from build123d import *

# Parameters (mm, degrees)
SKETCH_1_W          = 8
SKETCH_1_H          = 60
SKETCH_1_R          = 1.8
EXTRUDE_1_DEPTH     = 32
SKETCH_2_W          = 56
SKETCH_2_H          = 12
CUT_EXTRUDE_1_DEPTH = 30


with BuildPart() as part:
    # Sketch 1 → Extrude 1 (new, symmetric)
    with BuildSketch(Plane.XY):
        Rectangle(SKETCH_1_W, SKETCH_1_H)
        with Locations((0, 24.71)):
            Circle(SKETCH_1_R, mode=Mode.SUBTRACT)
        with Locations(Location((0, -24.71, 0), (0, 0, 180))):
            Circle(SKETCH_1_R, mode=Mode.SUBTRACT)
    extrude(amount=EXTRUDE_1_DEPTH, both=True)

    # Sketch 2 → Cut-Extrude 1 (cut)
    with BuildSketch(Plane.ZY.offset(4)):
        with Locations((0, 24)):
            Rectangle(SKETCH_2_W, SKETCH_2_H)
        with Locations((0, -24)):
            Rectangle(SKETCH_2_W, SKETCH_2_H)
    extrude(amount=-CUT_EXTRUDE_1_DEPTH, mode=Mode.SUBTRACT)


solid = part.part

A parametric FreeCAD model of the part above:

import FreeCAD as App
import Part
import Sketcher

V = App.Vector
Q = App.Units.Quantity

doc = App.newDocument("Part")
body = doc.addObject("PartDesign::Body", "Body")

# Sketch on XY plane
sketch1 = body.newObject("Sketcher::SketchObject", "Sketch")
sketch1.AttachmentSupport = (doc.getObject("XY_Plane"), [""])
sketch1.MapMode = "FlatFace"
sketch1.addGeometry([
    Part.LineSegment(V(-4, 30, 0), V(-4, -30, 0)),  # 0
    Part.LineSegment(V(-4, -30, 0), V(4, -30, 0)),  # 1
    Part.LineSegment(V(4, -30, 0), V(4, 30, 0)),  # 2
    Part.LineSegment(V(4, 30, 0), V(-4, 30, 0)),  # 3
    Part.Circle(V(0, -24.71, 0), V(0, 0, 1), 1.8),  # 4
    Part.Circle(V(0, 24.71, 0), V(0, 0, 1), 1.8),  # 5
], False)
sketch1.addConstraint([
    Sketcher.Constraint("Coincident", 0, 2, 1, 1),
    Sketcher.Constraint("Coincident", 1, 2, 2, 1),
    Sketcher.Constraint("Coincident", 2, 2, 3, 1),
    Sketcher.Constraint("Coincident", 3, 2, 0, 1),
    Sketcher.Constraint("Vertical", 0),
    Sketcher.Constraint("Horizontal", 1),
    Sketcher.Constraint("Vertical", 2),
    Sketcher.Constraint("Horizontal", 3),
    Sketcher.Constraint("Equal", 4, 5),
    Sketcher.Constraint("Symmetric", 4, 3, 5, 3, -1, 1),
    Sketcher.Constraint("Symmetric", 0, 2, 2, 2, -1, 1),
    Sketcher.Constraint("PointOnObject", 4, 3, -2),
    Sketcher.Constraint("Diameter", 4, Q("3.6 mm")),
    Sketcher.Constraint("DistanceX", 1, 1, 1, 2, Q("8 mm")),
    Sketcher.Constraint("DistanceY", 0, 2, 0, 1, Q("60 mm")),
    Sketcher.Constraint("DistanceY", 4, 3, -1, 1, Q("24.71 mm")),
])
pad1 = body.newObject("PartDesign::Pad", "Pad")
pad1.Profile = sketch1
pad1.Length = 64
pad1.Midplane = True

# Sketch on YZ plane
sketch2 = body.newObject("Sketcher::SketchObject", "Sketch001")
sketch2.AttachmentSupport = (doc.getObject("YZ_Plane"), [""])
sketch2.MapMode = "FlatFace"
sketch2.AttachmentOffset = App.Placement(V(0, 0, -4), App.Rotation())
sketch2.addGeometry([
    Part.LineSegment(V(30, -28, 0), V(18, -28, 0)),  # 0
    Part.LineSegment(V(18, -28, 0), V(18, 28, 0)),  # 1
    Part.LineSegment(V(18, 28, 0), V(30, 28, 0)),  # 2
    Part.LineSegment(V(30, 28, 0), V(30, -28, 0)),  # 3
    Part.LineSegment(V(-18, -28, 0), V(-30, -28, 0)),  # 4
    Part.LineSegment(V(-30, -28, 0), V(-30, 28, 0)),  # 5
    Part.LineSegment(V(-30, 28, 0), V(-18, 28, 0)),  # 6
    Part.LineSegment(V(-18, 28, 0), V(-18, -28, 0)),  # 7
], False)
sketch2.addConstraint([
    Sketcher.Constraint("Coincident", 0, 2, 1, 1),
    Sketcher.Constraint("Coincident", 1, 2, 2, 1),
    Sketcher.Constraint("Coincident", 2, 2, 3, 1),
    Sketcher.Constraint("Coincident", 3, 2, 0, 1),
    Sketcher.Constraint("Coincident", 4, 2, 5, 1),
    Sketcher.Constraint("Coincident", 5, 2, 6, 1),
    Sketcher.Constraint("Coincident", 6, 2, 7, 1),
    Sketcher.Constraint("Coincident", 7, 2, 4, 1),
    Sketcher.Constraint("Horizontal", 0),
    Sketcher.Constraint("Vertical", 1),
    Sketcher.Constraint("Horizontal", 2),
    Sketcher.Constraint("Vertical", 3),
    Sketcher.Constraint("Horizontal", 4),
    Sketcher.Constraint("Vertical", 5),
    Sketcher.Constraint("Horizontal", 6),
    Sketcher.Constraint("Vertical", 7),
    Sketcher.Constraint("Symmetric", 2, 2, 4, 2, -1, 1),
    Sketcher.Constraint("Symmetric", 0, 2, 6, 2, -1, 1),
    Sketcher.Constraint("Horizontal", 3, 2, 4, 2),
    Sketcher.Constraint("DistanceX", 0, 2, 0, 1, Q("12 mm")),
    Sketcher.Constraint("DistanceY", 1, 1, 1, 2, Q("56 mm")),
    Sketcher.Constraint("DistanceX", -1, 1, 0, 2, Q("18 mm")),
])
pocket1 = body.newObject("PartDesign::Pocket", "Pocket")
pocket1.Profile = sketch2
pocket1.Length = 30
pocket1.Reversed = True

doc.recompute()
